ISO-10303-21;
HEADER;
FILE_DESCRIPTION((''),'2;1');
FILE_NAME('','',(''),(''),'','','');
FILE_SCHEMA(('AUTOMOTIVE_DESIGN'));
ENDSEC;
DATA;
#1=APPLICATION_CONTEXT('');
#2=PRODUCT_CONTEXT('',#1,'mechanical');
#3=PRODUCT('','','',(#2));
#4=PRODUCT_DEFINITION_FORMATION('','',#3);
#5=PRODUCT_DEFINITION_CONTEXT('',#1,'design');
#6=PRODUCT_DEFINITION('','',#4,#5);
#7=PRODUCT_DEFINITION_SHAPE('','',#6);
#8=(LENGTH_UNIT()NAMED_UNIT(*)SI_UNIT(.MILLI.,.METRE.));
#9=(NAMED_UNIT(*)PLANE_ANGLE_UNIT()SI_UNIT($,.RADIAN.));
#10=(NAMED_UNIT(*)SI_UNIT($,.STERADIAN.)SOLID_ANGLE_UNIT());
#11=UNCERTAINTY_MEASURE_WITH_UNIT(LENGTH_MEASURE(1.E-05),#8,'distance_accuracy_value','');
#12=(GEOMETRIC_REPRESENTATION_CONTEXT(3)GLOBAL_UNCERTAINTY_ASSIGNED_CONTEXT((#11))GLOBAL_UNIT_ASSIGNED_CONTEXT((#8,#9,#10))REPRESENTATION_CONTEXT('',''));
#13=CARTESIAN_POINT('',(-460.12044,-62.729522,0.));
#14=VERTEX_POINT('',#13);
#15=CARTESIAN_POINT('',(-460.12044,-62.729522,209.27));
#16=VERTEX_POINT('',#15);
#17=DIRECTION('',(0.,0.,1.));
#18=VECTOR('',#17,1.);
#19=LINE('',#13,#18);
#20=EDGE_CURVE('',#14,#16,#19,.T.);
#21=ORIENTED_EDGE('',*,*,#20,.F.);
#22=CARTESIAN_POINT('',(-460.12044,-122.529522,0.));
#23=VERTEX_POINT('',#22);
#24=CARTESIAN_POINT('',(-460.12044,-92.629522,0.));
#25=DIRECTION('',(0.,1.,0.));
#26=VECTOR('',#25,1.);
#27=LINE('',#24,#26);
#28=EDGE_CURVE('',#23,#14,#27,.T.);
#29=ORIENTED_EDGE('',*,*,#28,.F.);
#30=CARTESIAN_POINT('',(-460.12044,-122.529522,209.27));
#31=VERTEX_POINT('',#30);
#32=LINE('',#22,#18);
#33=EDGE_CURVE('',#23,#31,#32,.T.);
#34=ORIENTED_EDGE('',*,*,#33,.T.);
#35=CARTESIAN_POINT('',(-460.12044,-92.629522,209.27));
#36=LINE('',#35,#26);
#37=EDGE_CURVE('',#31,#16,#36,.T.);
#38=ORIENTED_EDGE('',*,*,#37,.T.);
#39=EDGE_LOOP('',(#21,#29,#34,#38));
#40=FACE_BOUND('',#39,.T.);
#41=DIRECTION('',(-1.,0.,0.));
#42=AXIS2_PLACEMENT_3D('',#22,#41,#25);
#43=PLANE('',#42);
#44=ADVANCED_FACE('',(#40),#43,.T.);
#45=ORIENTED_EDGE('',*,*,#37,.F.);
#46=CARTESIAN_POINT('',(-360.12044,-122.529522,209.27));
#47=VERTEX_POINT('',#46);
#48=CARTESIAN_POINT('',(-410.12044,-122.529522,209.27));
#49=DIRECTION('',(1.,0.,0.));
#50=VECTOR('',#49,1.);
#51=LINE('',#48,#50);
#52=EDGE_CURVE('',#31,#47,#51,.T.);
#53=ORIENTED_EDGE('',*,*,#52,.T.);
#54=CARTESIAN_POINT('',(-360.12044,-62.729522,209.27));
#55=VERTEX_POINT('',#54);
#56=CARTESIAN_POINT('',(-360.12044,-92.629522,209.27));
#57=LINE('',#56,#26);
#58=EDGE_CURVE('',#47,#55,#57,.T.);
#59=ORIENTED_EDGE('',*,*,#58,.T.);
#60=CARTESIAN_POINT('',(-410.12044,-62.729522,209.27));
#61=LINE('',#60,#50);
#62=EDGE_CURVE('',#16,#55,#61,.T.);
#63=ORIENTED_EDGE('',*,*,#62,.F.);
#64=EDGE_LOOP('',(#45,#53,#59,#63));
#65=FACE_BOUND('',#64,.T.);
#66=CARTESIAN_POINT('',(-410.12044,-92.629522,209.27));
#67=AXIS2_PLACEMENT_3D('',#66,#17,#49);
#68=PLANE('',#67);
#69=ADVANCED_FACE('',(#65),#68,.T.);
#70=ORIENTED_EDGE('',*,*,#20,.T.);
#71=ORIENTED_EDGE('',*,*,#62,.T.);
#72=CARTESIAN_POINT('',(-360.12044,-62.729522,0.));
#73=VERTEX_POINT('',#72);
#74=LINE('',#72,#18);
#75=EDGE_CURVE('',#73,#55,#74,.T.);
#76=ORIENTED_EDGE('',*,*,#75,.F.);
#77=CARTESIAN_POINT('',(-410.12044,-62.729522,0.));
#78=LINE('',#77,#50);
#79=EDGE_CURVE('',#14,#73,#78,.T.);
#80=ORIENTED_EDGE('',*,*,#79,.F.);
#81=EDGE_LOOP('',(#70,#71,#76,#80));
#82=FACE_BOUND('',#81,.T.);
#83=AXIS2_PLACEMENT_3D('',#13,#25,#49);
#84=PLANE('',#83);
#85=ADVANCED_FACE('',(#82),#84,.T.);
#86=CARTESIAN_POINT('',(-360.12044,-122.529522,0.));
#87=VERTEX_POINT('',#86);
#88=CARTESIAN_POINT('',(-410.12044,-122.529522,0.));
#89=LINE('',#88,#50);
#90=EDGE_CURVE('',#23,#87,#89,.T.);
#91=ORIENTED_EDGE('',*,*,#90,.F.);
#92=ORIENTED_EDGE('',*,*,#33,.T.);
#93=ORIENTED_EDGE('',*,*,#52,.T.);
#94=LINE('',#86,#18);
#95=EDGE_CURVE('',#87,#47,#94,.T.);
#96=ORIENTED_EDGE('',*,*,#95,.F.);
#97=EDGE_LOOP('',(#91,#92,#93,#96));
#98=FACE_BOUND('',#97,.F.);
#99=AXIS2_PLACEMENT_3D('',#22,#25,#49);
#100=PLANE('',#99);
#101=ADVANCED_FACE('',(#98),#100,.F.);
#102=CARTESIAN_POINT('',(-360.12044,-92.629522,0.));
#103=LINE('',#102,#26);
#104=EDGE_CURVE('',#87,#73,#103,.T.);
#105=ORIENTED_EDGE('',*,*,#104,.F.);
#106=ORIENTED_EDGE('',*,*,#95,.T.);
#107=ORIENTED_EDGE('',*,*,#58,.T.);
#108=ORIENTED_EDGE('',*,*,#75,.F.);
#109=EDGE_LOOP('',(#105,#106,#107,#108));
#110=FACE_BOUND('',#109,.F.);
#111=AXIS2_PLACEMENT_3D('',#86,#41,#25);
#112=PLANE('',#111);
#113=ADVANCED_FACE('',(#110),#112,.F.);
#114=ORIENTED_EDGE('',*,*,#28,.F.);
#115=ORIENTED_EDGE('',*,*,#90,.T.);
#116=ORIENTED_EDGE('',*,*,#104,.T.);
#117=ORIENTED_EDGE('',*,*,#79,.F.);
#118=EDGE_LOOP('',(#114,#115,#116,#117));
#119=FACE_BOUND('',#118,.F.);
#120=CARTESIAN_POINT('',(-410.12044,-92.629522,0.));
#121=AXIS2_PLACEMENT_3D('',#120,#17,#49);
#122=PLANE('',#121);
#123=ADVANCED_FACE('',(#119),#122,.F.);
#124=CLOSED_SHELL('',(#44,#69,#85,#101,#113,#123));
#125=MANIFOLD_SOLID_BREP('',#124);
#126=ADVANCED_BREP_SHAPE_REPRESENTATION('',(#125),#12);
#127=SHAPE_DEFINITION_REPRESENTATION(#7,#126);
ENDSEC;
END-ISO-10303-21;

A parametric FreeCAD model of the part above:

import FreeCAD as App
import Part
import Sketcher

V = App.Vector

doc = App.newDocument("Part")
params = doc.addObject("Spreadsheet::Sheet", "Params")
for row, (alias, value) in enumerate([
    ("sketch1_width", "100 mm"),
    ("sketch1_height", "59.8 mm"),
    ("pad1_length", "209.27 mm"),
], start=1):
    params.set(f"A{row}", alias)
    params.set(f"B{row}", "=" + value)
    params.setAlias(f"B{row}", alias)

body = doc.addObject("PartDesign::Body", "Body")

# Sketch on XY plane
sketch1 = doc.addObject("Sketcher::SketchObject", "Sketch")
body.addObject(sketch1)
sketch1.AttachmentSupport = (doc.XY_Plane, [""])
sketch1.MapMode = "FlatFace"
sketch1.addGeometry([
    Part.LineSegment(V(-460.12044, -62.729522, 0), V(-460.12044, -122.529522, 0)),
    Part.LineSegment(V(-460.12044, -122.529522, 0), V(-360.12044, -122.529522, 0)),
    Part.LineSegment(V(-360.12044, -122.529522, 0), V(-360.12044, -62.729522, 0)),
    Part.LineSegment(V(-360.12044, -62.729522, 0), V(-460.12044, -62.729522, 0)),
], False)
sketch1.addConstraint([
    Sketcher.Constraint("Coincident", 0, 2, 1, 1),
    Sketcher.Constraint("Coincident", 1, 2, 2, 1),
    Sketcher.Constraint("Coincident", 2, 2, 3, 1),
    Sketcher.Constraint("Coincident", 3, 2, 0, 1),
    Sketcher.Constraint("Vertical", 0),
    Sketcher.Constraint("Horizontal", 1),
    Sketcher.Constraint("Vertical", 2),
    Sketcher.Constraint("Horizontal", 3),
    Sketcher.Constraint("DistanceX", 1, 1, 1, 2, 100.0),
    Sketcher.Constraint("DistanceY", 0, 2, 0, 1, 59.8),
    Sketcher.Constraint("DistanceX", 0, 2, -1, 1, 460.12044),
    Sketcher.Constraint("DistanceY", 0, 2, -1, 1, 122.529522),
])
sketch1.setExpression("Constraints[8]", "Params.sketch1_width")
sketch1.setExpression("Constraints[9]", "Params.sketch1_height")
pad1 = doc.addObject("PartDesign::Pad", "Pad")
body.addObject(pad1)
pad1.Profile = sketch1
pad1.setExpression("Length", "Params.pad1_length")

doc.recompute()
